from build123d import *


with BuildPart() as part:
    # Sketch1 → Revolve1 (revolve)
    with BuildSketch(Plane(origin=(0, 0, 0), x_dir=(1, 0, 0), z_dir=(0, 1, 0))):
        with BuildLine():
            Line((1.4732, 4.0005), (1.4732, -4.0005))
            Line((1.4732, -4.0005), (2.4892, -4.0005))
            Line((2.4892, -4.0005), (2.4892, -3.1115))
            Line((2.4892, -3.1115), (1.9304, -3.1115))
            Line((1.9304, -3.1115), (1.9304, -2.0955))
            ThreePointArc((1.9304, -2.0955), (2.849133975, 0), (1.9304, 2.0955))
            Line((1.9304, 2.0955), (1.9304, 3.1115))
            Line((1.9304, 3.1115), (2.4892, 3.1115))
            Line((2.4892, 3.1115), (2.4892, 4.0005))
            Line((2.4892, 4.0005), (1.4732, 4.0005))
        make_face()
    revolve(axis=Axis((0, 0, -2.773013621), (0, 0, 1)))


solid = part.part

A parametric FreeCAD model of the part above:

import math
import FreeCAD as App
import Part
import Sketcher

V = App.Vector
Q = App.Units.Quantity

doc = App.newDocument("Part")
params = doc.addObject("Spreadsheet::Sheet", "Params")
for row, (alias, value) in enumerate([
    ("sketch1_width", "0.04 in"),
    ("sketch1_width2", "0.022 in"),
    ("sketch1_height", "0.315 in"),
    ("sketch1_height2", "0.035 in"),
    ("revolution_angle", "360 deg"),
], start=1):
    params.set(f"A{row}", alias)
    params.set(f"B{row}", "=" + value)
    params.setAlias(f"B{row}", alias)

body = doc.addObject("PartDesign::Body", "Body")

# Sketch on XZ plane
sketch1 = body.newObject("Sketcher::SketchObject", "Sketch")
sketch1.AttachmentSupport = (doc.getObject("XZ_Plane"), [""])
sketch1.MapMode = "FlatFace"
sketch1.addGeometry([
    Part.LineSegment(V(1.5, -4, 0), V(1.5, 4, 0)),  # 0
    Part.LineSegment(V(1.5, 4, 0), V(2.5, 4, 0)),  # 1
    Part.LineSegment(V(2.5, 4, 0), V(2.5, 3.1, 0)),  # 2
    Part.LineSegment(V(2.5, 3.1, 0), V(1.9, 3.1, 0)),  # 3
    Part.LineSegment(V(1.9, 3.1, 0), V(1.9, 2.1, 0)),  # 4
    Part.ArcOfCircle(Part.Circle(V(0, 0, 0), V(0, 0, 1), 2.8), math.radians(-47), math.radians(47)),  # 5
    Part.LineSegment(V(1.9, -2.1, 0), V(1.9, -3.1, 0)),  # 6
    Part.LineSegment(V(1.9, -3.1, 0), V(2.5, -3.1, 0)),  # 7
    Part.LineSegment(V(2.5, -3.1, 0), V(2.5, -4, 0)),  # 8
    Part.LineSegment(V(2.5, -4, 0), V(1.5, -4, 0)),  # 9
], False)
sketch1.addConstraint([
    Sketcher.Constraint("Coincident", 0, 2, 1, 1),
    Sketcher.Constraint("Coincident", 1, 2, 2, 1),
    Sketcher.Constraint("Coincident", 2, 2, 3, 1),
    Sketcher.Constraint("Coincident", 3, 2, 4, 1),
    Sketcher.Constraint("Coincident", 4, 2, 5, 2),
    Sketcher.Constraint("Coincident", 5, 1, 6, 1),
    Sketcher.Constraint("Coincident", 6, 2, 7, 1),
    Sketcher.Constraint("Coincident", 7, 2, 8, 1),
    Sketcher.Constraint("Coincident", 8, 2, 9, 1),
    Sketcher.Constraint("Coincident", 9, 2, 0, 1),
    Sketcher.Constraint("Vertical", 0),
    Sketcher.Constraint("Horizontal", 1),
    Sketcher.Constraint("Vertical", 2),
    Sketcher.Constraint("Horizontal", 3),
    Sketcher.Constraint("Vertical", 4),
    Sketcher.Constraint("Vertical", 6),
    Sketcher.Constraint("Horizontal", 7),
    Sketcher.Constraint("Vertical", 8),
    Sketcher.Constraint("Horizontal", 9),
    Sketcher.Constraint("Coincident", 5, 3, -1, 1),
    Sketcher.Constraint("Symmetric", 3, 2, 6, 2, -1),
    Sketcher.Constraint("Symmetric", 1, 2, 8, 2, -1),
    Sketcher.Constraint("Equal", 9, 4),
    Sketcher.Constraint("DistanceX", 1, 1, 1, 2, Q("0.04 in")),
    Sketcher.Constraint("DistanceX", 3, 2, 3, 1, Q("0.022 in")),
    Sketcher.Constraint("DistanceY", 0, 1, 0, 2, Q("0.315 in")),
    Sketcher.Constraint("DistanceY", 2, 2, 2, 1, Q("0.035 in")),
    Sketcher.Constraint("DistanceX", -1, 1, 0, 2, Q("0.058 in")),
])
sketch1.setExpression("Constraints[23]", "Params.sketch1_width")
sketch1.setExpression("Constraints[24]", "Params.sketch1_width2")
sketch1.setExpression("Constraints[25]", "Params.sketch1_height")
sketch1.setExpression("Constraints[26]", "Params.sketch1_height2")
revolution = body.newObject("PartDesign::Revolution", "Revolution")
revolution.Profile = sketch1
revolution.ReferenceAxis = (sketch1, ["V_Axis"])
revolution.setExpression("Angle", "Params.revolution_angle")

doc.recompute()
